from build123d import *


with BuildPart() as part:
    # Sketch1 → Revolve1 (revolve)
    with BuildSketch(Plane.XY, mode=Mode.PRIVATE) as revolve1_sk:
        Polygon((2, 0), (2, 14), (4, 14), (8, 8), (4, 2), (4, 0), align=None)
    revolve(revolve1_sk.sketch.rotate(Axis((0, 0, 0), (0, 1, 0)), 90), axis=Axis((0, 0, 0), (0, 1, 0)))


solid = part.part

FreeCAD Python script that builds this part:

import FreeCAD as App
import Part
import Sketcher
Q = App.Units.Quantity

doc = App.newDocument("Part")
params = doc.addObject("Spreadsheet::Sheet", "Params")
for row, (alias, value) in enumerate([
    ("sketch1_width", "2 mm"),
    ("sketch1_height", "14 mm"),
    ("revolution_angle", "360 deg"),
], start=1):
    params.set(f"A{row}", alias)
    params.set(f"B{row}", "=" + value)
    params.setAlias(f"B{row}", alias)

body = doc.addObject("PartDesign::Body", "Body")

sketch1 = doc.addObject("Sketcher::SketchObject", "Sketch")
body.addObject(sketch1)
sketch1.AttachmentSupport = (doc.XY_Plane, [""])
sketch1.MapMode = "FlatFace"
sketch1.addGeometry([
    Part.LineSegment(App.Vector(2, 14, 0), App.Vector(2, 0, 0)),
    Part.LineSegment(App.Vector(2, 0, 0), App.Vector(4, 0, 0)),
    Part.LineSegment(App.Vector(4, 0, 0), App.Vector(4, 2, 0)),
    Part.LineSegment(App.Vector(4, 2, 0), App.Vector(8, 8, 0)),
    Part.LineSegment(App.Vector(8, 8, 0), App.Vector(4, 14, 0)),
    Part.LineSegment(App.Vector(4, 14, 0), App.Vector(2, 14, 0)),
], False)
sketch1.addConstraint([
    Sketcher.Constraint("Coincident", 0, 2, 1, 1),
    Sketcher.Constraint("Coincident", 1, 2, 2, 1),
    Sketcher.Constraint("Coincident", 2, 2, 3, 1),
    Sketcher.Constraint("Coincident", 3, 2, 4, 1),
    Sketcher.Constraint("Coincident", 4, 2, 5, 1),
    Sketcher.Constraint("Coincident", 5, 2, 0, 1),
    Sketcher.Constraint("Vertical", 0),
    Sketcher.Constraint("Horizontal", 1),
    Sketcher.Constraint("Vertical", 2),
    Sketcher.Constraint("Horizontal", 5),
    Sketcher.Constraint("PointOnObject", 0, 2, -1),
    Sketcher.Constraint("Vertical", 2, 2, 4, 2),
    Sketcher.Constraint("Equal", 5, 2),
    Sketcher.Constraint("Equal", 3, 4),
    Sketcher.Constraint("DistanceX", 1, 1, 1, 2, Q("2 mm")),
    Sketcher.Constraint("DistanceY", 0, 2, 0, 1, Q("14 mm")),
    Sketcher.Constraint("DistanceX", -1, 1, 0, 2, Q("2 mm")),
    Sketcher.Constraint("DistanceX", -1, 1, 3, 2, Q("8 mm")),
])
sketch1.setExpression("Constraints[14]", "Params.sketch1_width")
sketch1.setExpression("Constraints[15]", "Params.sketch1_height")
revolution = doc.addObject("PartDesign::Revolution", "Revolution")
body.addObject(revolution)
revolution.Profile = sketch1
revolution.ReferenceAxis = (sketch1, ["V_Axis"])
revolution.setExpression("Angle", "Params.revolution_angle")

doc.recompute()
